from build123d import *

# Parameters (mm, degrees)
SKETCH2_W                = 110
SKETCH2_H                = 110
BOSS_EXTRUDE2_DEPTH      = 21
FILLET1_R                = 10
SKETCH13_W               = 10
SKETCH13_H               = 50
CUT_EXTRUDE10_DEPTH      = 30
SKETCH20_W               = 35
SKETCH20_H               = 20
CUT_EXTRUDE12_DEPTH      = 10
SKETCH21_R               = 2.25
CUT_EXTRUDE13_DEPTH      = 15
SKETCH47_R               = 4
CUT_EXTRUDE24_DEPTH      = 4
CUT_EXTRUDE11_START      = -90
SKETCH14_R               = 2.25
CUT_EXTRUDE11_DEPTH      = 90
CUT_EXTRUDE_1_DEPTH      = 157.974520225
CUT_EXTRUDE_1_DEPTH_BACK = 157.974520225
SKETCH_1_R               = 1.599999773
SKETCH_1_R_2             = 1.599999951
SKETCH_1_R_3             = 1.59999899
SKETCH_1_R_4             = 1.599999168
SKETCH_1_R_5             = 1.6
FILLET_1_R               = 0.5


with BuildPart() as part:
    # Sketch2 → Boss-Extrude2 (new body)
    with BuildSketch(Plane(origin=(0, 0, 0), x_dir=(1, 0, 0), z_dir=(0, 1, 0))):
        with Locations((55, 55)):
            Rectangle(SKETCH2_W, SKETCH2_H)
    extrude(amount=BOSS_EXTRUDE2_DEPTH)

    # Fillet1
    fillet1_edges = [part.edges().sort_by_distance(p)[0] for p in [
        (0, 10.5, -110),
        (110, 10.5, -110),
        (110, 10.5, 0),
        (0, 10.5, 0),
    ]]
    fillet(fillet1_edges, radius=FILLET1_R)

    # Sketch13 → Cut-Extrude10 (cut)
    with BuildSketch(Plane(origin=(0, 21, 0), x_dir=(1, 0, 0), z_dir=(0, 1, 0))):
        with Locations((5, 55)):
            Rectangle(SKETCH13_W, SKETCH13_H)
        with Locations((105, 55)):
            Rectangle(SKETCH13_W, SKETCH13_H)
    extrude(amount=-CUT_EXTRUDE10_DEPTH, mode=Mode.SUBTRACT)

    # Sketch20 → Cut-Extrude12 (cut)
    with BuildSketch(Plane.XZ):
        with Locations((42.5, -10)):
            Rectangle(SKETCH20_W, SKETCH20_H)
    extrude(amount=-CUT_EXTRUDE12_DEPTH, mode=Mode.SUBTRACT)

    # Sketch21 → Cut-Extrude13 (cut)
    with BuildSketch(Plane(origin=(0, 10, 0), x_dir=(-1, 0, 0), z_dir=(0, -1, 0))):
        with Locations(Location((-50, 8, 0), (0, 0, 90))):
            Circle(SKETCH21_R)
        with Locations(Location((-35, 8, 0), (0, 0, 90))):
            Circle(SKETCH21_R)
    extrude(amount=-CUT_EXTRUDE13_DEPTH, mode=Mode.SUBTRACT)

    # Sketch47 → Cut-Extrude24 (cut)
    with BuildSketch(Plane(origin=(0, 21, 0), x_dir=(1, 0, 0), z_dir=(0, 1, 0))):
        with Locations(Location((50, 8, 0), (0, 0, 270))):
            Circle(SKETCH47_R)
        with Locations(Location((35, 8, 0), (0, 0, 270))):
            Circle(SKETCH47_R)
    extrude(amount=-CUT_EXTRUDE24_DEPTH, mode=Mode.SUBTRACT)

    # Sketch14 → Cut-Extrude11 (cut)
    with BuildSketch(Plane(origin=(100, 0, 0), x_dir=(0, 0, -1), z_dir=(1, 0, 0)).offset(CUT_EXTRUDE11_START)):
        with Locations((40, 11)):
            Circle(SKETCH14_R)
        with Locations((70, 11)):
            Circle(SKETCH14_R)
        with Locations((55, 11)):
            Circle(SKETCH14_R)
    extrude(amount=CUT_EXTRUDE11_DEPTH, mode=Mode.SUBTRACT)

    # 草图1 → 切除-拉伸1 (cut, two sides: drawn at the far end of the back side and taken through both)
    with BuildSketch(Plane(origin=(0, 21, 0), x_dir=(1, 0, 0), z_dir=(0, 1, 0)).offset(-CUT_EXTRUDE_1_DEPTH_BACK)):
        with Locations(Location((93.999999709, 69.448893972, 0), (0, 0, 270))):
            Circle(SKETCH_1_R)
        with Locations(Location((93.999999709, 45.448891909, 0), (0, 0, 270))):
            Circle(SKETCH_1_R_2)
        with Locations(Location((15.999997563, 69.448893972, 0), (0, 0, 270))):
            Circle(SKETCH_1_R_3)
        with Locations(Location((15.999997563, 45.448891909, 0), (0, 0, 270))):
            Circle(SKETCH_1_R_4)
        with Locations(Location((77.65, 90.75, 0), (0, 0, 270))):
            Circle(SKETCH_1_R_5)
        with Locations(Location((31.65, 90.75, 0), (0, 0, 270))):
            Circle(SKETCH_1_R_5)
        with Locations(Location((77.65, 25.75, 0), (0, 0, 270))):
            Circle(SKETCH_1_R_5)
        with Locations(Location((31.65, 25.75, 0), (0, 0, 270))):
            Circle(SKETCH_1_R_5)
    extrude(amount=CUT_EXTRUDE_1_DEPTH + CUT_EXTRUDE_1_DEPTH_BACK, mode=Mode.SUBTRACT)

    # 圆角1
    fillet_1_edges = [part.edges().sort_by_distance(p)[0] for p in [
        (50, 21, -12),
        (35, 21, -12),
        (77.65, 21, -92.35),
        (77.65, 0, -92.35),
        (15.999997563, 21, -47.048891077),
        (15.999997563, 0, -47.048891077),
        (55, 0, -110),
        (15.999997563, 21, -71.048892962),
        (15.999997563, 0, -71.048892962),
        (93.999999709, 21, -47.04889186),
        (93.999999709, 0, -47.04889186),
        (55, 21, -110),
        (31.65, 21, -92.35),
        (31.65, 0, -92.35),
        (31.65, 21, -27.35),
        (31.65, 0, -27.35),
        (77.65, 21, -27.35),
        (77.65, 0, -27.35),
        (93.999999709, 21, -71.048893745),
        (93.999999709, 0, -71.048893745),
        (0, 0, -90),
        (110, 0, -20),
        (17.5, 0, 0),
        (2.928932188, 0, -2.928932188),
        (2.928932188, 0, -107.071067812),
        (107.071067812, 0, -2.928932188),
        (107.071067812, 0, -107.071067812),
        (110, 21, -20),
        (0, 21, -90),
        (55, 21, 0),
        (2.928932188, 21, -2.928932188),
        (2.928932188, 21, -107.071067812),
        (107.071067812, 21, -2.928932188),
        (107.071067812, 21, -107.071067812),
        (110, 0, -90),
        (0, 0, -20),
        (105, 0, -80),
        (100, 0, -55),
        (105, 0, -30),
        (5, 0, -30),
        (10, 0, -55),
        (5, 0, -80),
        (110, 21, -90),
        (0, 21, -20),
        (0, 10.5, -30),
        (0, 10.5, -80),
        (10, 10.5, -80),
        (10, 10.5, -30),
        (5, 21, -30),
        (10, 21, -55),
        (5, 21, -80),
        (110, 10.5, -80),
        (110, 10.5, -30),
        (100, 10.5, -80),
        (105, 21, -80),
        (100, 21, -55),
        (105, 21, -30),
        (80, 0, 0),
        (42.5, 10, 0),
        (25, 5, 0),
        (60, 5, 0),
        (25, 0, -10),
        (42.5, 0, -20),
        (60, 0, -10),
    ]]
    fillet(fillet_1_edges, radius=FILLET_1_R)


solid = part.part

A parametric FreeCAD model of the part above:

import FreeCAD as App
import Part
import Sketcher

V = App.Vector


def edges_at(feature, points):
    """Names of the edges that pass closest to the given points."""
    edges = feature.Shape.Edges
    near = lambda p: min(range(len(edges)), key=lambda i: edges[i].distToShape(Part.Vertex(*p))[0])
    return sorted({f"Edge{near(p) + 1}" for p in points})


def add_polygon(sketch, points):
    """Adds a closed chain of lines whose ends are joined by coincident constraints."""
    first, n = sketch.GeometryCount, len(points)
    for a, b in zip(points, points[1:] + points[:1]):
        sketch.addGeometry(Part.LineSegment(App.Vector(*a, 0), App.Vector(*b, 0)), False)
    for i in range(n):
        sketch.addConstraint(Sketcher.Constraint("Coincident", first + i, 2, first + (i + 1) % n, 1))

doc = App.newDocument("Part")
body = doc.addObject("PartDesign::Body", "Body")

# Sketch on XZ plane
sketch1 = body.newObject("Sketcher::SketchObject", "Sketch")
sketch1.AttachmentSupport = (doc.getObject("XZ_Plane"), [""])
sketch1.MapMode = "FlatFace"
add_polygon(sketch1, [(0, -110), (0, 0), (110, 0), (110, -110)])  # lines 0-3
sketch1.addConstraint([
    Sketcher.Constraint("Vertical", 0),
    Sketcher.Constraint("Horizontal", 1),
    Sketcher.Constraint("Vertical", 2),
    Sketcher.Constraint("Horizontal", 3),
    Sketcher.Constraint("Coincident", 0, 2, -1, 1),
    Sketcher.Constraint("Equal", 3, 0),
    Sketcher.Constraint("DistanceX", 1, 1, 1, 2, 110.0),
])
pad1 = body.newObject("PartDesign::Pad", "Pad")
pad1.Profile = sketch1
pad1.Length = 21
pad1.Reversed = True
doc.recompute()

fillet = body.newObject("PartDesign::Fillet", "Fillet")
fillet.Base = (pad1, edges_at(pad1, [
    (0, 10.5, -110),
    (110, 10.5, -110),
    (110, 10.5, 0),
    (0, 10.5, 0),
]))
fillet.Radius = 10

# Sketch on XZ plane
sketch2 = body.newObject("Sketcher::SketchObject", "Sketch001")
sketch2.AttachmentSupport = (doc.getObject("XZ_Plane"), [""])
sketch2.MapMode = "FlatFace"
sketch2.AttachmentOffset = App.Placement(V(0, 0, -21), App.Rotation())
add_polygon(sketch2, [(0, -80), (0, -30), (10, -30), (10, -80)])  # lines 0-3
add_polygon(sketch2, [(100, -80), (100, -30), (110, -30), (110, -80)])  # lines 4-7
sketch2.addConstraint([
    Sketcher.Constraint("Vertical", 0),
    Sketcher.Constraint("Horizontal", 1),
    Sketcher.Constraint("Vertical", 2),
    Sketcher.Constraint("Horizontal", 3),
    Sketcher.Constraint("Vertical", 4),
    Sketcher.Constraint("Horizontal", 5),
    Sketcher.Constraint("Vertical", 6),
    Sketcher.Constraint("Horizontal", 7),
    Sketcher.Constraint("PointOnObject", 0, 2, -2),
    Sketcher.Constraint("Horizontal", 1, 2, 4, 2),
    Sketcher.Constraint("Horizontal", 3, 2, 6, 2),
    Sketcher.Constraint("Equal", 3, 5),
    Sketcher.Constraint("DistanceX", 1, 1, 1, 2, 10.0),
    Sketcher.Constraint("DistanceY", 0, 1, 0, 2, 50.0),
    Sketcher.Constraint("DistanceY", 0, 2, -1, 1, 30.0),
    Sketcher.Constraint("DistanceX", -1, 1, 4, 2, 100.0),
])
pocket1 = body.newObject("PartDesign::Pocket", "Pocket")
pocket1.Profile = sketch2
pocket1.Length = 30
pocket1.Reversed = True

# Sketch on XZ plane
sketch3 = body.newObject("Sketcher::SketchObject", "Sketch002")
sketch3.AttachmentSupport = (doc.getObject("XZ_Plane"), [""])
sketch3.MapMode = "FlatFace"
add_polygon(sketch3, [(25, 0), (25, -20), (60, -20), (60, 0)])  # lines 0-3
sketch3.addConstraint([
    Sketcher.Constraint("Vertical", 0),
    Sketcher.Constraint("Horizontal", 1),
    Sketcher.Constraint("Vertical", 2),
    Sketcher.Constraint("Horizontal", 3),
    Sketcher.Constraint("PointOnObject", 2, 2, -1),
    Sketcher.Constraint("DistanceX", 1, 1, 1, 2, 35.0),
    Sketcher.Constraint("DistanceY", 0, 2, 0, 1, 20.0),
    Sketcher.Constraint("DistanceX", -1, 1, 0, 2, 25.0),
])
pocket2 = body.newObject("PartDesign::Pocket", "Pocket001")
pocket2.Profile = sketch3
pocket2.Length = 10

# Sketch on XZ plane
sketch4 = body.newObject("Sketcher::SketchObject", "Sketch003")
sketch4.AttachmentSupport = (doc.getObject("XZ_Plane"), [""])
sketch4.MapMode = "FlatFace"
sketch4.AttachmentOffset = App.Placement(V(0, 0, -10), App.Rotation())
sketch4.addGeometry([
    Part.Circle(V(50, -8, 0), V(0, 0, 1), 2.25),
    Part.Circle(V(35, -8, 0), V(0, 0, 1), 2.25),
], False)
sketch4.addConstraint([
    Sketcher.Constraint("Equal", 0, 1),
    Sketcher.Constraint("Horizontal", 0, 3, 1, 3),
    Sketcher.Constraint("Diameter", 0, 4.5),
    Sketcher.Constraint("DistanceX", -1, 1, 0, 3, 50.0),
    Sketcher.Constraint("DistanceY", 0, 3, -1, 1, 8.0),
    Sketcher.Constraint("DistanceX", -1, 1, 1, 3, 35.0),
])
pocket3 = body.newObject("PartDesign::Pocket", "Pocket002")
pocket3.Profile = sketch4
pocket3.Length = 15

# Sketch on XZ plane
sketch5 = body.newObject("Sketcher::SketchObject", "Sketch004")
sketch5.AttachmentSupport = (doc.getObject("XZ_Plane"), [""])
sketch5.MapMode = "FlatFace"
sketch5.AttachmentOffset = App.Placement(V(0, 0, -21), App.Rotation())
sketch5.addGeometry([
    Part.Circle(V(50, -8, 0), V(0, 0, 1), 4),
    Part.Circle(V(35, -8, 0), V(0, 0, 1), 4),
], False)
sketch5.addConstraint([
    Sketcher.Constraint("Equal", 0, 1),
    Sketcher.Constraint("Horizontal", 0, 3, 1, 3),
    Sketcher.Constraint("Diameter", 0, 8.0),
    Sketcher.Constraint("DistanceX", -1, 1, 0, 3, 50.0),
    Sketcher.Constraint("DistanceY", 0, 3, -1, 1, 8.0),
    Sketcher.Constraint("DistanceX", -1, 1, 1, 3, 35.0),
])
pocket4 = body.newObject("PartDesign::Pocket", "Pocket003")
pocket4.Profile = sketch5
pocket4.Length = 4
pocket4.Reversed = True

# Sketch on YZ plane
sketch6 = body.newObject("Sketcher::SketchObject", "Sketch005")
sketch6.AttachmentSupport = (doc.getObject("YZ_Plane"), [""])
sketch6.MapMode = "FlatFace"
sketch6.AttachmentOffset = App.Placement(V(0, 0, 10), App.Rotation())
sketch6.addGeometry([
    Part.Circle(V(11, -40, 0), V(0, 0, 1), 2.25),
    Part.Circle(V(11, -70, 0), V(0, 0, 1), 2.25),
    Part.Circle(V(11, -55, 0), V(0, 0, 1), 2.25),
], False)
sketch6.addConstraint([
    Sketcher.Constraint("Equal", 0, 1),
    Sketcher.Constraint("Equal", 1, 2),
    Sketcher.Constraint("Vertical", 0, 3, 1, 3),
    Sketcher.Constraint("Vertical", 1, 3, 2, 3),
    Sketcher.Constraint("Diameter", 0, 4.5),
    Sketcher.Constraint("DistanceX", -1, 1, 0, 3, 11.0),
    Sketcher.Constraint("DistanceY", 0, 3, -1, 1, 40.0),
    Sketcher.Constraint("DistanceY", 1, 3, -1, 1, 70.0),
    Sketcher.Constraint("DistanceY", 2, 3, -1, 1, 55.0),
])
pocket5 = body.newObject("PartDesign::Pocket", "Pocket004")
pocket5.Profile = sketch6
pocket5.Length = 90
pocket5.Reversed = True

# Sketch on XZ plane
sketch7 = body.newObject("Sketcher::SketchObject", "Sketch006")
sketch7.AttachmentSupport = (doc.getObject("XZ_Plane"), [""])
sketch7.MapMode = "FlatFace"
sketch7.AttachmentOffset = App.Placement(V(0, 0, -21), App.Rotation())
sketch7.addGeometry([
    Part.Circle(V(94, -69.448894, 0), V(0, 0, 1), 1.6),  # 0
    Part.Circle(V(94, -45.448892, 0), V(0, 0, 1), 1.6),  # 1
    Part.Circle(V(15.999998, -69.448894, 0), V(0, 0, 1), 1.599999),  # 2
    Part.Circle(V(15.999998, -45.448892, 0), V(0, 0, 1), 1.599999),  # 3
    Part.Circle(V(77.65, -90.75, 0), V(0, 0, 1), 1.6),  # 4
    Part.Circle(V(31.65, -90.75, 0), V(0, 0, 1), 1.6),  # 5
    Part.Circle(V(77.65, -25.75, 0), V(0, 0, 1), 1.6),  # 6
    Part.Circle(V(31.65, -25.75, 0), V(0, 0, 1), 1.6),  # 7
], False)
sketch7.addConstraint([
    Sketcher.Constraint("Equal", 0, 1),
    Sketcher.Constraint("Equal", 1, 2),
    Sketcher.Constraint("Equal", 2, 3),
    Sketcher.Constraint("Equal", 3, 4),
    Sketcher.Constraint("Equal", 4, 5),
    Sketcher.Constraint("Equal", 5, 6),
    Sketcher.Constraint("Equal", 6, 7),
    Sketcher.Constraint("Horizontal", 0, 3, 2, 3),
    Sketcher.Constraint("Horizontal", 1, 3, 3, 3),
    Sketcher.Constraint("Horizontal", 4, 3, 5, 3),
    Sketcher.Constraint("Horizontal", 6, 3, 7, 3),
    Sketcher.Constraint("Vertical", 0, 3, 1, 3),
    Sketcher.Constraint("Vertical", 2, 3, 3, 3),
    Sketcher.Constraint("Vertical", 4, 3, 6, 3),
    Sketcher.Constraint("Vertical", 5, 3, 7, 3),
    Sketcher.Constraint("Diameter", 0, 3.2),
    Sketcher.Constraint("DistanceX", -1, 1, 0, 3, 94.0),
    Sketcher.Constraint("DistanceX", 5, 3, 4, 3, 46.0),
    Sketcher.Constraint("DistanceY", 4, 3, 6, 3, 65.0),
    Sketcher.Constraint("DistanceX", -1, 1, 4, 3, 77.65),
    Sketcher.Constraint("DistanceY", 4, 3, -1, 1, 90.75),
    Sketcher.Constraint("DistanceY", 1, 3, -1, 1, 45.448892),
    Sketcher.Constraint("DistanceY", 0, 3, -1, 1, 69.448894),
    Sketcher.Constraint("DistanceX", -1, 1, 2, 3, 15.999998),
])
pocket6 = body.newObject("PartDesign::Pocket", "Pocket005")
pocket6.Profile = sketch7
pocket6.Type = "ThroughAll"
pocket6.Midplane = True
doc.recompute()

fillet2 = body.newObject("PartDesign::Fillet", "Fillet001")
fillet2.Base = (pocket6, edges_at(pocket6, [
    (50, 21, -12),
    (35, 21, -12),
    (77.65, 21, -92.35),
    (77.65, 0, -92.35),
    (16, 21, -47.049),
    (16, 0, -47.049),
    (55, 0, -110),
    (16, 21, -71.049),
    (16, 0, -71.049),
    (94, 21, -47.049),
    (94, 0, -47.049),
    (55, 21, -110),
    (31.65, 21, -92.35),
    (31.65, 0, -92.35),
    (31.65, 21, -27.35),
    (31.65, 0, -27.35),
    (77.65, 21, -27.35),
    (77.65, 0, -27.35),
    (94, 21, -71.049),
    (94, 0, -71.049),
    (0, 0, -90),
    (110, 0, -20),
    (17.5, 0, 0),
    (2.929, 0, -2.929),
    (2.929, 0, -107.071),
    (107.071, 0, -2.929),
    (107.071, 0, -107.071),
    (110, 21, -20),
    (0, 21, -90),
    (55, 21, 0),
    (2.929, 21, -2.929),
    (2.929, 21, -107.071),
    (107.071, 21, -2.929),
    (107.071, 21, -107.071),
    (110, 0, -90),
    (0, 0, -20),
    (105, 0, -80),
    (100, 0, -55),
    (105, 0, -30),
    (5, 0, -30),
    (10, 0, -55),
    (5, 0, -80),
    (110, 21, -90),
    (0, 21, -20),
    (0, 10.5, -30),
    (0, 10.5, -80),
    (10, 10.5, -80),
    (10, 10.5, -30),
    (5, 21, -30),
    (10, 21, -55),
    (5, 21, -80),
    (110, 10.5, -80),
    (110, 10.5, -30),
    (100, 10.5, -80),
    (105, 21, -80),
    (100, 21, -55),
    (105, 21, -30),
    (80, 0, 0),
    (42.5, 10, 0),
    (25, 5, 0),
    (60, 5, 0),
    (25, 0, -10),
    (42.5, 0, -20),
    (60, 0, -10),
]))
fillet2.Radius = 0.5

doc.recompute()
